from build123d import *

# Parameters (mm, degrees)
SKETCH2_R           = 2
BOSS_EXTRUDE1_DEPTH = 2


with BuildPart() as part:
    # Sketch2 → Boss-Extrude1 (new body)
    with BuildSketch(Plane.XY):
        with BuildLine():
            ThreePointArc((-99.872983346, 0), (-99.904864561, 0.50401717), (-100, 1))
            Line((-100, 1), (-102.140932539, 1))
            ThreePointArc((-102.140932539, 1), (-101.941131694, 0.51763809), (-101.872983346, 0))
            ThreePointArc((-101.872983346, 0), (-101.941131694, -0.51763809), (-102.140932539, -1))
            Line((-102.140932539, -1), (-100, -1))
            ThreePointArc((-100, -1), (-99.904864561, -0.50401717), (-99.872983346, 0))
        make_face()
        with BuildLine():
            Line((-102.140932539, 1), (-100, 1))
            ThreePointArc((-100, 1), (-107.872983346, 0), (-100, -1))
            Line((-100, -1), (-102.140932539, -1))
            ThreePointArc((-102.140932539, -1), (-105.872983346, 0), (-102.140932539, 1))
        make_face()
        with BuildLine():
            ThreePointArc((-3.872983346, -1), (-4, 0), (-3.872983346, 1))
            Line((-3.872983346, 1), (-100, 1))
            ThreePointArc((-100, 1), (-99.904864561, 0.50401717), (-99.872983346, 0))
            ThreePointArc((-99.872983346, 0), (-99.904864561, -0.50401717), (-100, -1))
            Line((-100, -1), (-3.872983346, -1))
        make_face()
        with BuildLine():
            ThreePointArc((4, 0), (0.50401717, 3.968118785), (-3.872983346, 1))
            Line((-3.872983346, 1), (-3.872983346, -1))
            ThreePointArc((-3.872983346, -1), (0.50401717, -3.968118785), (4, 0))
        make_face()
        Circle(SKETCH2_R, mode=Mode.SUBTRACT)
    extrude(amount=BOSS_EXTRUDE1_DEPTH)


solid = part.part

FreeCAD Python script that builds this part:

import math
import FreeCAD as App
import Part
import Sketcher
from FreeCAD import Vector
Q = App.Units.Quantity

doc = App.newDocument("Part")
body = doc.addObject("PartDesign::Body", "Body")
body.AllowCompound = True

# Sketch on XY plane
sketch1 = body.newObject("Sketcher::SketchObject", "Sketch")
sketch1.AttachmentSupport = (doc.getObject("XY_Plane"), [""])
sketch1.MapMode = "FlatFace"
sketch1.addGeometry([
    Part.ArcOfCircle(Part.Circle(Vector(-103.872983, 0, 0), Vector(0, 0, 1), 4), math.radians(14.477512), math.radians(345.522488)),  # 0
    Part.LineSegment(Vector(-100, -1, 0), Vector(-3.872983, -1, 0)),  # 1
    Part.ArcOfCircle(Part.Circle(Vector(0, 0, 0), Vector(0, 0, 1), 4), math.radians(165.522488), math.radians(194.477512)),  # 2
    Part.LineSegment(Vector(-3.872983, 1, 0), Vector(-100, 1, 0)),  # 3
    Part.ArcOfCircle(Part.Circle(Vector(-103.872983, 0, 0), Vector(0, 0, 1), 2), math.radians(30), math.radians(330)),  # 4
    Part.ArcOfCircle(Part.Circle(Vector(-103.872983, 0, 0), Vector(0, 0, 1), 2), math.radians(0), math.radians(30)),  # 5
    Part.ArcOfCircle(Part.Circle(Vector(-103.872983, 0, 0), Vector(0, 0, 1), 2), math.radians(-30), math.radians(0)),  # 6
    Part.ArcOfCircle(Part.Circle(Vector(0, 0, 0), Vector(0, 0, 1), 4), math.radians(0), math.radians(165.522488)),  # 7
    Part.LineSegment(Vector(-3.872983, 1, 0), Vector(-3.872983, -1, 0)),  # 8
    Part.ArcOfCircle(Part.Circle(Vector(0, 0, 0), Vector(0, 0, 1), 4), math.radians(-165.522488), math.radians(0)),  # 9
    Part.Circle(Vector(0, 0, 0), Vector(0, 0, 1), 2),  # 10
], False)
sketch1.addConstraint([
    Sketcher.Constraint("Coincident", 0, 2, 1, 1),
    Sketcher.Constraint("Coincident", 1, 2, 2, 2),
    Sketcher.Constraint("Coincident", 2, 1, 3, 1),
    Sketcher.Constraint("Coincident", 3, 2, 0, 1),
    Sketcher.Constraint("Tangent", 4, 1, 5, 2),
    Sketcher.Constraint("Tangent", 5, 1, 6, 2),
    Sketcher.Constraint("Tangent", 6, 1, 4, 2),
    Sketcher.Constraint("Coincident", 7, 2, 8, 1),
    Sketcher.Constraint("Coincident", 8, 2, 9, 1),
    Sketcher.Constraint("Tangent", 9, 2, 7, 1),
    Sketcher.Constraint("Horizontal", 1),
    Sketcher.Constraint("Horizontal", 3),
    Sketcher.Constraint("Vertical", 8),
    Sketcher.Constraint("Coincident", 2, 3, -1, 1),
    Sketcher.Constraint("Coincident", 7, 3, -1, 1),
    Sketcher.Constraint("Coincident", 10, 3, -1, 1),
    Sketcher.Constraint("Coincident", 4, 3, 0, 3),
    Sketcher.Constraint("Coincident", 7, 2, 2, 1),
    Sketcher.Constraint("Coincident", 8, 2, 1, 2),
    Sketcher.Constraint("Equal", 0, 2),
    Sketcher.Constraint("Equal", 6, 10),
    Sketcher.Constraint("Symmetric", 4, 1, 6, 1, -1),
    Sketcher.Constraint("PointOnObject", 5, 1, -1),
    Sketcher.Constraint("PointOnObject", 9, 2, -1),
    Sketcher.Constraint("Horizontal", 3, 2, 4, 1),
    Sketcher.Constraint("Diameter", 10, Q("4 mm")),
    Sketcher.Constraint("Radius", 0, Q("4 mm")),
    Sketcher.Constraint("DistanceY", 8, 2, 8, 1, Q("2 mm")),
    Sketcher.Constraint("DistanceX", 0, 2, -1, 1, Q("100 mm")),
])
pad1 = body.newObject("PartDesign::Pad", "Pad")
pad1.Profile = sketch1
pad1.Length = 2

doc.recompute()
